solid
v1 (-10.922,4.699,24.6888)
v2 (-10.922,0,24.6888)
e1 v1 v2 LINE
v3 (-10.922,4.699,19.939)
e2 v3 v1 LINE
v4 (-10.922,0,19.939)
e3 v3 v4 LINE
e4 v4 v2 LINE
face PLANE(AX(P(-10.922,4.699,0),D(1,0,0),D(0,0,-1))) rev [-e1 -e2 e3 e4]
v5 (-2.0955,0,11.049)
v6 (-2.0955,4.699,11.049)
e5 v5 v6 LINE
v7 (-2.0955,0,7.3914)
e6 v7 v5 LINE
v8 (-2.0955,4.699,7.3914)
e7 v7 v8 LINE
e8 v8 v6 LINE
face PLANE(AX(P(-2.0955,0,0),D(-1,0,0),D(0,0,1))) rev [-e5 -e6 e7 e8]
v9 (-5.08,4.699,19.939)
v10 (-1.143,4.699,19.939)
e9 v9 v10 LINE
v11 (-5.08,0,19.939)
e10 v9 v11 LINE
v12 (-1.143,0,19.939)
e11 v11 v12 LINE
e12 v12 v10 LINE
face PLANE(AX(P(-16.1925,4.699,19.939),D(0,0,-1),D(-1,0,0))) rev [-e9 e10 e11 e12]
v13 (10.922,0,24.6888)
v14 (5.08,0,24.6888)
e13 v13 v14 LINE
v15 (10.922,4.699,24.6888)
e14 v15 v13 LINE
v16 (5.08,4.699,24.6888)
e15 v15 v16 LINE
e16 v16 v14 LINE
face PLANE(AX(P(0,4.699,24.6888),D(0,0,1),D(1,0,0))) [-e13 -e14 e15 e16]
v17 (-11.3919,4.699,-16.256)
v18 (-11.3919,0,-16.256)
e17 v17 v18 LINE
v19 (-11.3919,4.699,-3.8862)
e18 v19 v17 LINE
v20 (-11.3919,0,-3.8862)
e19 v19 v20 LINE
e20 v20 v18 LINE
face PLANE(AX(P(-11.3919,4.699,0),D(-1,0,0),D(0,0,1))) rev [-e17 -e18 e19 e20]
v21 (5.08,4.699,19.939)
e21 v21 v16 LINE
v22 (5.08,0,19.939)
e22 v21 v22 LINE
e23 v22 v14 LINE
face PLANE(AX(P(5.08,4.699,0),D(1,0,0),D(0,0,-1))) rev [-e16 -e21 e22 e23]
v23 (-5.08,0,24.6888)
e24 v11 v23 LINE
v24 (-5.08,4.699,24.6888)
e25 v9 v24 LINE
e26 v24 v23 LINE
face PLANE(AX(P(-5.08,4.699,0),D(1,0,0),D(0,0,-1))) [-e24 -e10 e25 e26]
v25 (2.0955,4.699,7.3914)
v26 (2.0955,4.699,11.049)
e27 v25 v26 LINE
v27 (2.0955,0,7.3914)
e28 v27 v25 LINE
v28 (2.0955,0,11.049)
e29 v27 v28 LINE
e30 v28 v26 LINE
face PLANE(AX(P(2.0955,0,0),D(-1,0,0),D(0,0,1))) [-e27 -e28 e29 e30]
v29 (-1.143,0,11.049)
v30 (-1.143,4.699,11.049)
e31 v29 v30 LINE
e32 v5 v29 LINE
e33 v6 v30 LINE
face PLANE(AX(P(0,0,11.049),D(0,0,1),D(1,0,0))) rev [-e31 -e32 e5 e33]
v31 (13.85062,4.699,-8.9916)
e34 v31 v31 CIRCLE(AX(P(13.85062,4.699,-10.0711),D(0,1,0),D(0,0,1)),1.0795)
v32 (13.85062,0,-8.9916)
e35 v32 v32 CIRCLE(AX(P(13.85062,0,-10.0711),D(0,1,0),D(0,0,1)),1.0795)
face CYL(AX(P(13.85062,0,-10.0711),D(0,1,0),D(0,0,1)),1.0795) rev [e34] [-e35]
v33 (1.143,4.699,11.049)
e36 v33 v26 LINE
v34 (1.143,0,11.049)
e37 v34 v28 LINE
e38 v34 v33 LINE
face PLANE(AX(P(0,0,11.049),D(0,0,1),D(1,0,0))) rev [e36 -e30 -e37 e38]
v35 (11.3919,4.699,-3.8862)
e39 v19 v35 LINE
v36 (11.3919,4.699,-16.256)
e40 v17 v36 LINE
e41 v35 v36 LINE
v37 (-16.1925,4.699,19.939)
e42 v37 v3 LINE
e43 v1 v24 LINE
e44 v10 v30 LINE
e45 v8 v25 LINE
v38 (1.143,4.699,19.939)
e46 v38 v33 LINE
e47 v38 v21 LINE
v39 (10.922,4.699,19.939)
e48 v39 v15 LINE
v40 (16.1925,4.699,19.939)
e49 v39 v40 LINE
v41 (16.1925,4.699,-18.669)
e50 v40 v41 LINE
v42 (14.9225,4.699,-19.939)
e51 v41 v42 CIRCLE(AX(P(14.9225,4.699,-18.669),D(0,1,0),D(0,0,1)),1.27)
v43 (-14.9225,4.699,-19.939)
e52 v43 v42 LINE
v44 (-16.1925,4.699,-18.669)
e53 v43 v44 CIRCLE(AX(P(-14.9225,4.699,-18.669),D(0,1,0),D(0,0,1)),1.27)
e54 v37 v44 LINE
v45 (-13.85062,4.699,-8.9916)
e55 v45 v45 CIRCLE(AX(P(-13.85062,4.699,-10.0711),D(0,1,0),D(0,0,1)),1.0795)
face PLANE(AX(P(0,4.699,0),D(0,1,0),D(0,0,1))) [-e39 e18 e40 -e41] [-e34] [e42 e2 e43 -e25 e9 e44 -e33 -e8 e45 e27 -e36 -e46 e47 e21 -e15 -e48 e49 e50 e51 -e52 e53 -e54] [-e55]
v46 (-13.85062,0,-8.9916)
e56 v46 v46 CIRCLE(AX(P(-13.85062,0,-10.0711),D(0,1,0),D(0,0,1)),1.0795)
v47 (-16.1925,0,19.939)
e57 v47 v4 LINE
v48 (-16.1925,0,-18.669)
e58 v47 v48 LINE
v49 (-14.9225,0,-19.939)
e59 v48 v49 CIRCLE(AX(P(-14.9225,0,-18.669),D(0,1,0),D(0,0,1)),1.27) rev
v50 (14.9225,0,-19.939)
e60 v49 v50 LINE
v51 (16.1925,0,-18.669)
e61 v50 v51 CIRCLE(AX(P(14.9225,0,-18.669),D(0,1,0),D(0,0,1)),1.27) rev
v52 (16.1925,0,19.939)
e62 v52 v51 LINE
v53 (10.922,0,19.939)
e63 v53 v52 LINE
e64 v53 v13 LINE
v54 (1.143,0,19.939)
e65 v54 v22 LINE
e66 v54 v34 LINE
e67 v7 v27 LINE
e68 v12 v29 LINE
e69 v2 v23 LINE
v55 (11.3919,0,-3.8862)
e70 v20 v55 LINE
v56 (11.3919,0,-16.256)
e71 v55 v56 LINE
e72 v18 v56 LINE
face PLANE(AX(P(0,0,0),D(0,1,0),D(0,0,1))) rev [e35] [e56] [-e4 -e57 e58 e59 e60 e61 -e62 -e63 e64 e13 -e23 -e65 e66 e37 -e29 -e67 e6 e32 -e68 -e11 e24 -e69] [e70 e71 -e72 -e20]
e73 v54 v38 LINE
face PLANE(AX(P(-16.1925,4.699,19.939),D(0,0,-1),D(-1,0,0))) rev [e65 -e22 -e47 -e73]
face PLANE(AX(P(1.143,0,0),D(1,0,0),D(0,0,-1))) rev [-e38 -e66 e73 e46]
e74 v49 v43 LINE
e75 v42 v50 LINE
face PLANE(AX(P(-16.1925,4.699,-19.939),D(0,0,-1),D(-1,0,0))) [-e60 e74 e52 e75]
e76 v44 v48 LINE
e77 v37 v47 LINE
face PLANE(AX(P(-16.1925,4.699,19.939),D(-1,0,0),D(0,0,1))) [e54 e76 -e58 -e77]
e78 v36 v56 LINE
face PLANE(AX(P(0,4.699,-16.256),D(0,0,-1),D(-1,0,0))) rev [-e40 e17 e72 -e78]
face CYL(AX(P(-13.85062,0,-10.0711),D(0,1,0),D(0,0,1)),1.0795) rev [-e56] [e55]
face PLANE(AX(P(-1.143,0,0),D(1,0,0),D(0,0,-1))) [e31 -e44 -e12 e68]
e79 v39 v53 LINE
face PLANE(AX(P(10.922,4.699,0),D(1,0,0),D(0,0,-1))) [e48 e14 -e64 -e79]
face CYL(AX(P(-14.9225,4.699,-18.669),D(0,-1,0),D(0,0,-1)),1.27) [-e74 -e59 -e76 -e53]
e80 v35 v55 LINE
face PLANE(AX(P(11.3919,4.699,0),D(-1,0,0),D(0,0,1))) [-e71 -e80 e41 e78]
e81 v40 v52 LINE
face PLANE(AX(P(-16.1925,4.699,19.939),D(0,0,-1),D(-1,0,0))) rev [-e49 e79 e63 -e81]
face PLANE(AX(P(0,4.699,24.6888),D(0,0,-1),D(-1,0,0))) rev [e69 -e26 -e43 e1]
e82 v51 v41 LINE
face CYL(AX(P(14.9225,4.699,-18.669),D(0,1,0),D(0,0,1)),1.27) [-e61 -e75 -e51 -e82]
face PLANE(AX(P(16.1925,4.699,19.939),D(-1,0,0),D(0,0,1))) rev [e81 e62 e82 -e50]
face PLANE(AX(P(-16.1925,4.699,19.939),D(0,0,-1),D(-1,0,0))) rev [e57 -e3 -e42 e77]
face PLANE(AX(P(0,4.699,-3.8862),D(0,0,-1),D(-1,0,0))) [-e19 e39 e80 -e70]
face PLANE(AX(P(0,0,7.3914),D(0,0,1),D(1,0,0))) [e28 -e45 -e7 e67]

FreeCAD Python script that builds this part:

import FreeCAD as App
import Part
import Sketcher

V = App.Vector
Q = App.Units.Quantity


def edges_at(feature, points):
    """Names of the edges that pass closest to the given points."""
    edges = feature.Shape.Edges
    near = lambda p: min(range(len(edges)), key=lambda i: edges[i].distToShape(Part.Vertex(*p))[0])
    return sorted({f"Edge{near(p) + 1}" for p in points})


def add_polygon(sketch, points):
    """Adds a closed chain of lines whose ends are joined by coincident constraints."""
    first, n = sketch.GeometryCount, len(points)
    for a, b in zip(points, points[1:] + points[:1]):
        sketch.addGeometry(Part.LineSegment(App.Vector(*a, 0), App.Vector(*b, 0)), False)
    for i in range(n):
        sketch.addConstraint(Sketcher.Constraint("Coincident", first + i, 2, first + (i + 1) % n, 1))

doc = App.newDocument("Part")
body = doc.addObject("PartDesign::Body", "Body")

sketch1 = doc.addObject("Sketcher::SketchObject", "Sketch")
body.addObject(sketch1)
sketch1.AttachmentSupport = (doc.XZ_Plane, [""])
sketch1.MapMode = "FlatFace"
add_polygon(sketch1, [(-16.2, -19.9), (-16.2, 19.9), (-10.9, 19.9), (-10.9, 24.7), (-5.1, 24.7), (-5.1, 19.9), (5.1, 19.9), (5.1, 24.7), (10.9, 24.7), (10.9, 19.9), (16.2, 19.9), (16.2, -19.9)])
add_polygon(sketch1, [(11.4, -3.9), (-11.4, -3.9), (-11.4, -16.3), (11.4, -16.3)])
sketch1.addConstraint([
    Sketcher.Constraint("Vertical", 0),
    Sketcher.Constraint("Horizontal", 1),
    Sketcher.Constraint("Vertical", 2),
    Sketcher.Constraint("Horizontal", 3),
    Sketcher.Constraint("Vertical", 4),
    Sketcher.Constraint("Horizontal", 5),
    Sketcher.Constraint("Vertical", 6),
    Sketcher.Constraint("Horizontal", 7),
    Sketcher.Constraint("Vertical", 8),
    Sketcher.Constraint("Horizontal", 9),
    Sketcher.Constraint("Vertical", 10),
    Sketcher.Constraint("Horizontal", 11),
    Sketcher.Constraint("Horizontal", 12),
    Sketcher.Constraint("Vertical", 13),
    Sketcher.Constraint("Horizontal", 14),
    Sketcher.Constraint("Vertical", 15),
    Sketcher.Constraint("Symmetric", 0, 2, 10, 2, -1, 1),
    Sketcher.Constraint("Symmetric", 3, 2, 6, 2, -2),
    Sketcher.Constraint("Symmetric", 1, 2, 8, 2, -2),
    Sketcher.Constraint("Horizontal", 1, 2, 4, 2),
    Sketcher.Constraint("DistanceX", 5, 1, 5, 2, Q("0.4 in")),
    Sketcher.Constraint("DistanceX", 3, 1, 3, 2, Q("0.23 in")),
    Sketcher.Constraint("DistanceY", 0, 1, 0, 2, Q("1.57 in")),
    Sketcher.Constraint("DistanceX", 11, 2, 11, 1, Q("1.275 in")),
    Sketcher.Constraint("DistanceX", 12, 2, 12, 1, Q("0.897 in")),
    Sketcher.Constraint("DistanceY", 2, 1, 2, 2, Q("0.187 in")),
    Sketcher.Constraint("DistanceY", 13, 2, 13, 1, Q("0.487 in")),
    Sketcher.Constraint("DistanceY", 13, 2, -1, 1, Q("0.64 in")),
    Sketcher.Constraint("DistanceX", 11, 2, 12, 2, Q("0.189 in")),
])
pad1 = doc.addObject("PartDesign::Pad", "Pad")
body.addObject(pad1)
pad1.Profile = sketch1
pad1.Length = Q("0.185 in")
pad1.Reversed = True

sketch2 = doc.addObject("Sketcher::SketchObject", "Sketch001")
body.addObject(sketch2)
sketch2.AttachmentSupport = (doc.XZ_Plane, [""])
sketch2.MapMode = "FlatFace"
sketch2.AttachmentOffset = App.Placement(V(0, 0, -0.185 * 25.4), App.Rotation())
add_polygon(sketch2, [(-2.1, 11), (-1.1, 11), (-1.1, 19.9), (1.1, 19.9), (1.1, 11), (2.1, 11), (2.1, 7.4), (-2.1, 7.4)])
sketch2.addConstraint([
    Sketcher.Constraint("Horizontal", 0),
    Sketcher.Constraint("Vertical", 1),
    Sketcher.Constraint("Horizontal", 2),
    Sketcher.Constraint("Vertical", 3),
    Sketcher.Constraint("Horizontal", 4),
    Sketcher.Constraint("Vertical", 5),
    Sketcher.Constraint("Horizontal", 6),
    Sketcher.Constraint("Vertical", 7),
    Sketcher.Constraint("Symmetric", 0, 2, 3, 2, -2),
    Sketcher.Constraint("Equal", 0, 4),
    Sketcher.Constraint("DistanceX", 2, 1, 2, 2, Q("0.09 in")),
    Sketcher.Constraint("DistanceY", 1, 1, 1, 2, Q("0.35 in")),
    Sketcher.Constraint("DistanceX", 6, 2, 6, 1, Q("0.165 in")),
    Sketcher.Constraint("DistanceY", 5, 2, 5, 1, Q("0.144 in")),
    Sketcher.Constraint("DistanceY", -1, 1, 0, 2, Q("0.435 in")),
])
pocket1 = doc.addObject("PartDesign::Pocket", "Pocket")
body.addObject(pocket1)
pocket1.Profile = sketch2
pocket1.Type = "ThroughAll"
pocket1.Reversed = True
doc.recompute()

fillet = doc.addObject("PartDesign::Fillet", "Fillet")
body.addObject(fillet)
fillet.Base = (pocket1, edges_at(pocket1, [(16.192, 2.349, -19.939), (-16.192, 2.349, -19.939)]))
fillet.Radius = Q("0.05 in")

sketch3 = doc.addObject("Sketcher::SketchObject", "Sketch002")
body.addObject(sketch3)
sketch3.AttachmentSupport = (doc.XZ_Plane, [""])
sketch3.MapMode = "FlatFace"
sketch3.AttachmentOffset = App.Placement(V(0, 0, -0.185 * 25.4), App.Rotation())
sketch3.addGeometry([
    Part.Circle(V(13.9, -10.1, 0), V(0, 0, 1), 1.1),
    Part.Circle(V(-13.9, -10.1, 0), V(0, 0, 1), 1.1),
], False)
sketch3.addConstraint([
    Sketcher.Constraint("Equal", 0, 1),
    Sketcher.Constraint("Symmetric", 0, 3, 1, 3, -2),
    Sketcher.Constraint("Diameter", 0, Q("0.085 in")),
    Sketcher.Constraint("DistanceX", -1, 1, 0, 3, Q("0.5453 in")),
    Sketcher.Constraint("DistanceY", 0, 3, -1, 1, Q("0.3965 in")),
])
pocket2 = doc.addObject("PartDesign::Pocket", "Pocket001")
body.addObject(pocket2)
pocket2.Profile = sketch3
pocket2.Type = "ThroughAll"
pocket2.Reversed = True

doc.recompute()
